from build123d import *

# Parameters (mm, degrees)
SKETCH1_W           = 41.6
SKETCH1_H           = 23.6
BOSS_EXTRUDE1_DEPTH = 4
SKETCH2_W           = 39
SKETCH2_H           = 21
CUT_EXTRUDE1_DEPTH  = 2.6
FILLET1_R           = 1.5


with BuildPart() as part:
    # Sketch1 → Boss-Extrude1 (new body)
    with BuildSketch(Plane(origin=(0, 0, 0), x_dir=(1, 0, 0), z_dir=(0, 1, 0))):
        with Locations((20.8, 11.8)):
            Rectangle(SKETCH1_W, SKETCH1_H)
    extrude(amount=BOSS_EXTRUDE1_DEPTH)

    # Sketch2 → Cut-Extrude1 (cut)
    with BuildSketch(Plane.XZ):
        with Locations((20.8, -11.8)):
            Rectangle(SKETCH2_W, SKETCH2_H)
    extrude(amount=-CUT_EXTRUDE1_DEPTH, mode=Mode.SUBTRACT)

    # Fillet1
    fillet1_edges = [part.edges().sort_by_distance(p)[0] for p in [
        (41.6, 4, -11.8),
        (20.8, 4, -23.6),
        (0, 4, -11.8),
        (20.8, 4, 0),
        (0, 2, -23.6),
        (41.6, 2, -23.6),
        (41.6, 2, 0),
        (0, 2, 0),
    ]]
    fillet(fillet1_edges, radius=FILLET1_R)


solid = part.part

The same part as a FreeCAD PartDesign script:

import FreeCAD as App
import Part
import Sketcher

V = App.Vector


def edges_at(feature, points):
    """Names of the edges that pass closest to the given points."""
    edges = feature.Shape.Edges
    near = lambda p: min(range(len(edges)), key=lambda i: edges[i].distToShape(Part.Vertex(*p))[0])
    return sorted({f"Edge{near(p) + 1}" for p in points})


def add_polygon(sketch, points):
    """Adds a closed chain of lines whose ends are joined by coincident constraints."""
    first, n = sketch.GeometryCount, len(points)
    for a, b in zip(points, points[1:] + points[:1]):
        sketch.addGeometry(Part.LineSegment(App.Vector(*a, 0), App.Vector(*b, 0)), False)
    for i in range(n):
        sketch.addConstraint(Sketcher.Constraint("Coincident", first + i, 2, first + (i + 1) % n, 1))

doc = App.newDocument("Part")
body = doc.addObject("PartDesign::Body", "Body")

sketch1 = body.newObject("Sketcher::SketchObject", "Sketch")
sketch1.AttachmentSupport = (doc.getObject("XZ_Plane"), [""])
sketch1.MapMode = "FlatFace"
add_polygon(sketch1, [(0, -24), (0, 0), (42, 0), (42, -24)])
sketch1.addConstraint([
    Sketcher.Constraint("Vertical", 0),
    Sketcher.Constraint("Horizontal", 1),
    Sketcher.Constraint("Vertical", 2),
    Sketcher.Constraint("Horizontal", 3),
    Sketcher.Constraint("Coincident", 0, 2, -1, 1),
    Sketcher.Constraint("DistanceX", 1, 1, 1, 2, 41.6),
    Sketcher.Constraint("DistanceY", 0, 1, 0, 2, 23.6),
])
pad1 = body.newObject("PartDesign::Pad", "Pad")
pad1.Profile = sketch1
pad1.Length = 4
pad1.Reversed = True

sketch2 = body.newObject("Sketcher::SketchObject", "Sketch001")
sketch2.AttachmentSupport = (doc.getObject("XZ_Plane"), [""])
sketch2.MapMode = "FlatFace"
add_polygon(sketch2, [(1, -1), (1, -22), (40, -22), (40, -1)])
sketch2.addConstraint([
    Sketcher.Constraint("Vertical", 0),
    Sketcher.Constraint("Horizontal", 1),
    Sketcher.Constraint("Vertical", 2),
    Sketcher.Constraint("Horizontal", 3),
    Sketcher.Constraint("DistanceX", 1, 1, 1, 2, 39.0),
    Sketcher.Constraint("DistanceY", 0, 2, 0, 1, 21.0),
    Sketcher.Constraint("DistanceX", -1, 1, 0, 2, 1.3),
    Sketcher.Constraint("DistanceY", 0, 2, -1, 1, 22.3),
])
pocket1 = body.newObject("PartDesign::Pocket", "Pocket")
pocket1.Profile = sketch2
pocket1.Length = 2.6
doc.recompute()

fillet = body.newObject("PartDesign::Fillet", "Fillet")
fillet.Base = (pocket1, edges_at(pocket1, [
    (41.6, 4, -11.8),
    (20.8, 4, -23.6),
    (0, 4, -11.8),
    (20.8, 4, 0),
    (0, 2, -23.6),
    (41.6, 2, -23.6),
    (41.6, 2, 0),
    (0, 2, 0),
]))
fillet.Radius = 1.5

doc.recompute()
